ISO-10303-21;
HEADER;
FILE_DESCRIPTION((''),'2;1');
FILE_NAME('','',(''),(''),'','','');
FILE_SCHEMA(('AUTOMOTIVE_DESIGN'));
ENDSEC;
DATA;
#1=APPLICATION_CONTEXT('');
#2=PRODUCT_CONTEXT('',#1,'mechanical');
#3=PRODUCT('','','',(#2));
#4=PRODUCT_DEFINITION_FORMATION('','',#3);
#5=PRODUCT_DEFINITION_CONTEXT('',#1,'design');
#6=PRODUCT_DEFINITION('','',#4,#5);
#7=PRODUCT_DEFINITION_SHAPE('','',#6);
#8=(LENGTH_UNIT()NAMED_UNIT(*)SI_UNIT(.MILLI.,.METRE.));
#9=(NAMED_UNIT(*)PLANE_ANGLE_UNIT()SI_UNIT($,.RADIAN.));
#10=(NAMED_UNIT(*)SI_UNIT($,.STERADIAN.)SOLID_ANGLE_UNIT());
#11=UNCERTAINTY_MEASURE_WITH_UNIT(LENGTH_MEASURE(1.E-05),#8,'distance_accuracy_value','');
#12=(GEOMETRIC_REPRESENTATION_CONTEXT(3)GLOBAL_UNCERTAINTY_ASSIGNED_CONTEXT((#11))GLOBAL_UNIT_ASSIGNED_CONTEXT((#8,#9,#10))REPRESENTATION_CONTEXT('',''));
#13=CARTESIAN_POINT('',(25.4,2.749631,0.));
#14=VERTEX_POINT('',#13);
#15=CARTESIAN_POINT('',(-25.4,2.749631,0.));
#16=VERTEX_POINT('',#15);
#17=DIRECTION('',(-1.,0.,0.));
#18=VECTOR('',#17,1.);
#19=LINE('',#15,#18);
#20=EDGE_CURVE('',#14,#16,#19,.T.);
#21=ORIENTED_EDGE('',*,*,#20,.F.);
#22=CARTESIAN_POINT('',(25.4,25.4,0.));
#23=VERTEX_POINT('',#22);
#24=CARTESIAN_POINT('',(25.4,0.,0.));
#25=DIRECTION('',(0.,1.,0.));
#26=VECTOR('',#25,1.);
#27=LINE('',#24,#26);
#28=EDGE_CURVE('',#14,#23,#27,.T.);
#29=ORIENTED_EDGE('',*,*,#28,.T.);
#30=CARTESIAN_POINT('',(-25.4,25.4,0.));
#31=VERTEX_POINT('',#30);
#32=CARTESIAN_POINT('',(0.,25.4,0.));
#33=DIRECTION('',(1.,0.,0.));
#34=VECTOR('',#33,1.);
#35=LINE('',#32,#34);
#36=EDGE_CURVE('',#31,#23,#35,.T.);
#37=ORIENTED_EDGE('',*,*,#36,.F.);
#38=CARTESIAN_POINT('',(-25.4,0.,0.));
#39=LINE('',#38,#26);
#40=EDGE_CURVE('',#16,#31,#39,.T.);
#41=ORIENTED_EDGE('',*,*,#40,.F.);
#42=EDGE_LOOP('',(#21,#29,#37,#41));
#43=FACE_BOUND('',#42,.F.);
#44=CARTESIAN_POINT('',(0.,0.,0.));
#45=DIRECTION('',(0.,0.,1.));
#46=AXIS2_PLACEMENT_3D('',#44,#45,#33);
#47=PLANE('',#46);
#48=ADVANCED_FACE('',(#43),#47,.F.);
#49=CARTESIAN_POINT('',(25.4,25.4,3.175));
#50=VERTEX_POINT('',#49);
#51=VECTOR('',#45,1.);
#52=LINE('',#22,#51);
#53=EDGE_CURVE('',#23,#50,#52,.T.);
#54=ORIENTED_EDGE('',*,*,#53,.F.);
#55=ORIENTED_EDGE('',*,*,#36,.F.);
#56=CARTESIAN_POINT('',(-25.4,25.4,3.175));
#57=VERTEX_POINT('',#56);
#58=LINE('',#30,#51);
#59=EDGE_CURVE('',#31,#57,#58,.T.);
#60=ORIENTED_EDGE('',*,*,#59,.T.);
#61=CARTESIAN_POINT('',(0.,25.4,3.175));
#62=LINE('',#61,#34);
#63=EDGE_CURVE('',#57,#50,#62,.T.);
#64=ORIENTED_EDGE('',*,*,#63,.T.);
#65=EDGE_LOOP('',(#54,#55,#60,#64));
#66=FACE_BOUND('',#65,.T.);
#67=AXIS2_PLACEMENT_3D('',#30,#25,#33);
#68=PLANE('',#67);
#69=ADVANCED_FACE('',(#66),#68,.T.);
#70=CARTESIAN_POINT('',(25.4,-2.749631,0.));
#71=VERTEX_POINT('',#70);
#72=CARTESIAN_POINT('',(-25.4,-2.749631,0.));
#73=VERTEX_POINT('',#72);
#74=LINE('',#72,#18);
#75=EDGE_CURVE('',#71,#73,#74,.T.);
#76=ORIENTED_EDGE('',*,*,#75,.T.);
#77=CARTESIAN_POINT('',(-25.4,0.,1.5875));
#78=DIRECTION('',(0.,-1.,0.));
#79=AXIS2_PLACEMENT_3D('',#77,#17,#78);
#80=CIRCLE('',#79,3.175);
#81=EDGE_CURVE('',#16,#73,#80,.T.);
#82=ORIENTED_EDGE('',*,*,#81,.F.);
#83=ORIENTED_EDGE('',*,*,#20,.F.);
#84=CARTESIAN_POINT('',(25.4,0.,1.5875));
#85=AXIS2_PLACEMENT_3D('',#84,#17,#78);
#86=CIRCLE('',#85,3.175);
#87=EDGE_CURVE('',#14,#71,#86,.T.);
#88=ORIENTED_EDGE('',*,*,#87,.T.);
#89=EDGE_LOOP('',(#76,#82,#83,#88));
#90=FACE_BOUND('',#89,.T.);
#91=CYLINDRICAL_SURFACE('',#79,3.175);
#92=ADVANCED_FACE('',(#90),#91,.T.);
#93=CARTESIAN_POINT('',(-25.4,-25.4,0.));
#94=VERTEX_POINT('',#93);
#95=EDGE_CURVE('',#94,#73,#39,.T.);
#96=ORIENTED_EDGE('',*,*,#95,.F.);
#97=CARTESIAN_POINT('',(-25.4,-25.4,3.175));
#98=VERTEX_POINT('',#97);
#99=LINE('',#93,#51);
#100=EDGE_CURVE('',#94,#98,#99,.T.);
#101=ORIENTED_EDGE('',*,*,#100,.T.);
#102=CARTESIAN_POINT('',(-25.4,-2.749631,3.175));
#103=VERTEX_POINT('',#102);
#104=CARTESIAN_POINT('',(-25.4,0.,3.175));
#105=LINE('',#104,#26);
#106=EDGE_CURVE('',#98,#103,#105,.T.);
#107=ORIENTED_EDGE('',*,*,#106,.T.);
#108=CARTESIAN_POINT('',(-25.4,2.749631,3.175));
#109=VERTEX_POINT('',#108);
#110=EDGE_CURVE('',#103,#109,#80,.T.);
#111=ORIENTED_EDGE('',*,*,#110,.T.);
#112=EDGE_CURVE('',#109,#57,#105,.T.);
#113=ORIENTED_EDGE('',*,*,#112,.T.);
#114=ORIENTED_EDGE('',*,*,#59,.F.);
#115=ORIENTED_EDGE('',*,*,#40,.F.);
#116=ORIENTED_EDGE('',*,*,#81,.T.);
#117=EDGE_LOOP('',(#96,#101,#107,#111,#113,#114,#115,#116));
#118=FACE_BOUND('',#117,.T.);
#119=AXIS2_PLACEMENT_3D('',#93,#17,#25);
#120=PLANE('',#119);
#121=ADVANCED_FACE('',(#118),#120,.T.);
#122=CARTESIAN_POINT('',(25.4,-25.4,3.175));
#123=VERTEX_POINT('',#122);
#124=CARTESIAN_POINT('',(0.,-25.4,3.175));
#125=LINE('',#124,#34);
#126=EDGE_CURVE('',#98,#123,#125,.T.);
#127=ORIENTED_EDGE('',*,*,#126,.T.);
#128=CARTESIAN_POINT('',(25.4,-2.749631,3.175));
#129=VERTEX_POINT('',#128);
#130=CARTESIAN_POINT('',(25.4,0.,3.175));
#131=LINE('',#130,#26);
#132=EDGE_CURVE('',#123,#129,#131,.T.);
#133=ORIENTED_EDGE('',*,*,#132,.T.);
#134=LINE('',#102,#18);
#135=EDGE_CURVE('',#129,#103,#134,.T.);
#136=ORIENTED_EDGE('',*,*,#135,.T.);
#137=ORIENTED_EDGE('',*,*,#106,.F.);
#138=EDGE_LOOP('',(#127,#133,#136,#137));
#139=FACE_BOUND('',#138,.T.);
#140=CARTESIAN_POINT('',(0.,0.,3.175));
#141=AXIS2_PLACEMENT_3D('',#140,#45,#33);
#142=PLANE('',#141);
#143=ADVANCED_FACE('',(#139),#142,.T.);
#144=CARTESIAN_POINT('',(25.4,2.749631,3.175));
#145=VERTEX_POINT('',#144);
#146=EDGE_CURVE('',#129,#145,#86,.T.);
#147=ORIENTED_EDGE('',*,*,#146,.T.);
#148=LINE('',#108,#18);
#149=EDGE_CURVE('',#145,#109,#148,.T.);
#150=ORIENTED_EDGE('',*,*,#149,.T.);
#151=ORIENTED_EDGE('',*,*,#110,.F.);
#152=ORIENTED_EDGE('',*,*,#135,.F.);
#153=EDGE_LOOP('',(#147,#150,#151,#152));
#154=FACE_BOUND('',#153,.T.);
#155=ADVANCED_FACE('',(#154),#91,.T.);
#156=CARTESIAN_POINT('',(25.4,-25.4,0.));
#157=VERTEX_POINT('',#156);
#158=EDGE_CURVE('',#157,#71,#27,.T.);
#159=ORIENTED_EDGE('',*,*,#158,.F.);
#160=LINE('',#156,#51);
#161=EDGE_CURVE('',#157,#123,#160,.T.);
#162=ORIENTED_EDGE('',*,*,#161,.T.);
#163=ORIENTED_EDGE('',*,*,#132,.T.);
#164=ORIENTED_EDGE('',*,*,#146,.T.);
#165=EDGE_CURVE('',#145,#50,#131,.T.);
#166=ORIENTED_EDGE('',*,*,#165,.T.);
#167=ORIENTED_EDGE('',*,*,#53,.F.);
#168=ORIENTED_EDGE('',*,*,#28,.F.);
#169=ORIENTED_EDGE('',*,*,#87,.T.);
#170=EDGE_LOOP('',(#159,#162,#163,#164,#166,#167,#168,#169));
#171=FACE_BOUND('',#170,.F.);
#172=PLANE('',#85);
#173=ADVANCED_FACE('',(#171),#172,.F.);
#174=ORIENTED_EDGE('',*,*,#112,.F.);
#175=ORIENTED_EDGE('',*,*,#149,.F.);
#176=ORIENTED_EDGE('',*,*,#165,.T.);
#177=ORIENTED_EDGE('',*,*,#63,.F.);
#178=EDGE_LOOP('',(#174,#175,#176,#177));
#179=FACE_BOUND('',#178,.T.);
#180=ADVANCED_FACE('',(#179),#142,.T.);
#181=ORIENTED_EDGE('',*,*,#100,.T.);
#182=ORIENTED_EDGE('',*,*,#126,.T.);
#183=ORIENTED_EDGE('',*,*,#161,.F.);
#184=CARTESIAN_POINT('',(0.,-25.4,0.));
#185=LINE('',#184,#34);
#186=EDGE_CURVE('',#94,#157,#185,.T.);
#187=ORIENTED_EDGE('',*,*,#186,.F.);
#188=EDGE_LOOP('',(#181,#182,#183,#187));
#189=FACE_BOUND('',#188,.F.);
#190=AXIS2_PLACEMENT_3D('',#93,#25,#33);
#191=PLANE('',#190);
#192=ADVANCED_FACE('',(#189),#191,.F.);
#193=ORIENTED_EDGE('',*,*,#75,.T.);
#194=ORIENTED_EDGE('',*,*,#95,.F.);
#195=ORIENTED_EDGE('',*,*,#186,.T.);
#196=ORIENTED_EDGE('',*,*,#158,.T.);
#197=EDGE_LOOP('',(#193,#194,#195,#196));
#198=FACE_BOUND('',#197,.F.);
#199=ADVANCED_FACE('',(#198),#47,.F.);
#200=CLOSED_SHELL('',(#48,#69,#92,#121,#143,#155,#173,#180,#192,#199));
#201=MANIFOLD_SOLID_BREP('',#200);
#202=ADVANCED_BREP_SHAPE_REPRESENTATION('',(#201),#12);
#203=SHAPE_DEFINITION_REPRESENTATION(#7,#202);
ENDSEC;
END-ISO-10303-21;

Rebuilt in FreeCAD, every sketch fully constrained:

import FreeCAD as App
import Part
import Sketcher
from FreeCAD import Vector
Q = App.Units.Quantity

doc = App.newDocument("Part")
body = doc.addObject("PartDesign::Body", "Body")

sketch1 = body.newObject("Sketcher::SketchObject", "Sketch")
sketch1.AttachmentSupport = (doc.getObject("XY_Plane"), [""])
sketch1.MapMode = "FlatFace"
sketch1.addGeometry(Part.LineSegment(Vector(-25, 25, 0), Vector(-25, -25, 0)), False)
sketch1.addGeometry(Part.LineSegment(Vector(-25, -25, 0), Vector(25, -25, 0)), False)
sketch1.addGeometry(Part.LineSegment(Vector(25, -25, 0), Vector(25, 25, 0)), False)
sketch1.addGeometry(Part.LineSegment(Vector(25, 25, 0), Vector(-25, 25, 0)), False)
sketch1.addConstraint(Sketcher.Constraint("Coincident", 0, 2, 1, 1))
sketch1.addConstraint(Sketcher.Constraint("Coincident", 1, 2, 2, 1))
sketch1.addConstraint(Sketcher.Constraint("Coincident", 2, 2, 3, 1))
sketch1.addConstraint(Sketcher.Constraint("Coincident", 3, 2, 0, 1))
sketch1.addConstraint(Sketcher.Constraint("Vertical", 0))
sketch1.addConstraint(Sketcher.Constraint("Horizontal", 1))
sketch1.addConstraint(Sketcher.Constraint("Vertical", 2))
sketch1.addConstraint(Sketcher.Constraint("Horizontal", 3))
sketch1.addConstraint(Sketcher.Constraint("Symmetric", 0, 2, 2, 2, -1, 1))
sketch1.addConstraint(Sketcher.Constraint("Equal", 3, 0))
sketch1.addConstraint(Sketcher.Constraint("DistanceX", 1, 1, 1, 2, Q("2 in")))
pad1 = body.newObject("PartDesign::Pad", "Pad")
pad1.Profile = sketch1
pad1.Length = Q("0.125 in")

sketch2 = body.newObject("Sketcher::SketchObject", "Sketch001")
sketch2.AttachmentSupport = (doc.getObject("YZ_Plane"), [""])
sketch2.MapMode = "FlatFace"
sketch2.AttachmentOffset = App.Placement(Vector(0, 0, -1 * 25.4), App.Rotation())
sketch2.addGeometry(Part.Circle(Vector(0, 1.6, 0), Vector(0, 0, 1), 3.2), False)
sketch2.addConstraint(Sketcher.Constraint("PointOnObject", 0, 3, -2))
sketch2.addConstraint(Sketcher.Constraint("Diameter", 0, Q("0.25 in")))
sketch2.addConstraint(Sketcher.Constraint("DistanceY", -1, 1, 0, 3, Q("0.0625 in")))
pad2 = body.newObject("PartDesign::Pad", "Pad001")
pad2.Profile = sketch2
pad2.Type = "UpToLast"

doc.recompute()
